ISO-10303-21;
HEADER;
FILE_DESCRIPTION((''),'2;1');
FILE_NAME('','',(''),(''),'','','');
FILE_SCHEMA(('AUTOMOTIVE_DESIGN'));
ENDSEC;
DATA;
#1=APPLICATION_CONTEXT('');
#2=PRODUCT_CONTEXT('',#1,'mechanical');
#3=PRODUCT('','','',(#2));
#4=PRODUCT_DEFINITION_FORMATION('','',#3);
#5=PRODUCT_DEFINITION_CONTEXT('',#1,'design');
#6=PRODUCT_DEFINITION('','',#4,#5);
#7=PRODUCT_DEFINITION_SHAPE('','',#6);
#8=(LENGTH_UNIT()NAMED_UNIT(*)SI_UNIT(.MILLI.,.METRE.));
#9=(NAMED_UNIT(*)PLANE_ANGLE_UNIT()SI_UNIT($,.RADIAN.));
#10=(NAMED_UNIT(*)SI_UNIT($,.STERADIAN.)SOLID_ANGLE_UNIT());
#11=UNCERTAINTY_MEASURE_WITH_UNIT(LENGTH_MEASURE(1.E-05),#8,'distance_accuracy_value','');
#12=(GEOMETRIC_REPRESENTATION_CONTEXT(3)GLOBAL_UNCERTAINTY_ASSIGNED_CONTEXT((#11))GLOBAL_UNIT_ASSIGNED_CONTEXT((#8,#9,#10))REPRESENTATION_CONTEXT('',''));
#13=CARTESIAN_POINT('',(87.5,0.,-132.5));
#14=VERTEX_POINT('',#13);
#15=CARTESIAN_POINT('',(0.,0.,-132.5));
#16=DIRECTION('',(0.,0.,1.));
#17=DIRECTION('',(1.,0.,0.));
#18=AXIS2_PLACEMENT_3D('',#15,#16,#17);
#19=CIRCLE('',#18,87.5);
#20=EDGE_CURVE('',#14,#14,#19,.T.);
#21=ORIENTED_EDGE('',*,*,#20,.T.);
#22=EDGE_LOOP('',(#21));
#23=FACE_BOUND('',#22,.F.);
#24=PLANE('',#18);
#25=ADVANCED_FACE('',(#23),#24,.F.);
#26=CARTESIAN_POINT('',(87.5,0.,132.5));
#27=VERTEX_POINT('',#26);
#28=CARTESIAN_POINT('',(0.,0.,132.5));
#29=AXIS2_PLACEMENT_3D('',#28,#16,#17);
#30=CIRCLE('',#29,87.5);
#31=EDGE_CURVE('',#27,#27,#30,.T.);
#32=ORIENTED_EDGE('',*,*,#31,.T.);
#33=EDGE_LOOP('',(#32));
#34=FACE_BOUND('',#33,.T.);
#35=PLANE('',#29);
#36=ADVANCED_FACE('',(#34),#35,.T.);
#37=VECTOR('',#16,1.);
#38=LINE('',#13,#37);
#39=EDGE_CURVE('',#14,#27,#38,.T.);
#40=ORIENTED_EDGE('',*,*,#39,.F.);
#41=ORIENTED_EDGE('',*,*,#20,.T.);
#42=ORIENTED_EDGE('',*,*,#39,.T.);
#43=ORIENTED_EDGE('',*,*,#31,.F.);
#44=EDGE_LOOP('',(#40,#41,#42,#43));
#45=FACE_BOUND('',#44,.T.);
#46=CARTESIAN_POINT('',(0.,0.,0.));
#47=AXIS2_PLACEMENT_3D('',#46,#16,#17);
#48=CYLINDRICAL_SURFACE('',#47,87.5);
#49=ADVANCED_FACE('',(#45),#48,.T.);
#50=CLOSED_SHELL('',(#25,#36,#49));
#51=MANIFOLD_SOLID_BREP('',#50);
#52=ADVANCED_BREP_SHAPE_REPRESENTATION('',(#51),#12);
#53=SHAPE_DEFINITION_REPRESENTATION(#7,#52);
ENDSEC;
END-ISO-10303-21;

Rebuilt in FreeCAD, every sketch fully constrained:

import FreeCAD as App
import Part
import Sketcher
Q = App.Units.Quantity

doc = App.newDocument("Part")
body = doc.addObject("PartDesign::Body", "Body")

sketch1 = body.newObject("Sketcher::SketchObject", "Sketch")
sketch1.AttachmentSupport = (doc.getObject("XY_Plane"), [""])
sketch1.MapMode = "FlatFace"
sketch1.addGeometry(Part.Circle(App.Vector(0, 0, 0), App.Vector(0, 0, 1), 88), False)
sketch1.addConstraint(Sketcher.Constraint("Coincident", 0, 3, -1, 1))
sketch1.addConstraint(Sketcher.Constraint("Diameter", 0, Q("175 mm")))
pad1 = body.newObject("PartDesign::Pad", "Pad")
pad1.Profile = sketch1
pad1.Length = 132.5

sketch2 = body.newObject("Sketcher::SketchObject", "Sketch001")
sketch2.AttachmentSupport = (doc.getObject("XY_Plane"), [""])
sketch2.MapMode = "FlatFace"
sketch2.addGeometry(Part.Circle(App.Vector(0, 0, 0), App.Vector(0, 0, 1), 88), False)
sketch2.addConstraint(Sketcher.Constraint("Coincident", 0, 3, -1, 1))
sketch2.addConstraint(Sketcher.Constraint("Diameter", 0, Q("175 mm")))
pad2 = body.newObject("PartDesign::Pad", "Pad001")
pad2.Profile = sketch2
pad2.Length = 132.5
pad2.Reversed = True

doc.recompute()
